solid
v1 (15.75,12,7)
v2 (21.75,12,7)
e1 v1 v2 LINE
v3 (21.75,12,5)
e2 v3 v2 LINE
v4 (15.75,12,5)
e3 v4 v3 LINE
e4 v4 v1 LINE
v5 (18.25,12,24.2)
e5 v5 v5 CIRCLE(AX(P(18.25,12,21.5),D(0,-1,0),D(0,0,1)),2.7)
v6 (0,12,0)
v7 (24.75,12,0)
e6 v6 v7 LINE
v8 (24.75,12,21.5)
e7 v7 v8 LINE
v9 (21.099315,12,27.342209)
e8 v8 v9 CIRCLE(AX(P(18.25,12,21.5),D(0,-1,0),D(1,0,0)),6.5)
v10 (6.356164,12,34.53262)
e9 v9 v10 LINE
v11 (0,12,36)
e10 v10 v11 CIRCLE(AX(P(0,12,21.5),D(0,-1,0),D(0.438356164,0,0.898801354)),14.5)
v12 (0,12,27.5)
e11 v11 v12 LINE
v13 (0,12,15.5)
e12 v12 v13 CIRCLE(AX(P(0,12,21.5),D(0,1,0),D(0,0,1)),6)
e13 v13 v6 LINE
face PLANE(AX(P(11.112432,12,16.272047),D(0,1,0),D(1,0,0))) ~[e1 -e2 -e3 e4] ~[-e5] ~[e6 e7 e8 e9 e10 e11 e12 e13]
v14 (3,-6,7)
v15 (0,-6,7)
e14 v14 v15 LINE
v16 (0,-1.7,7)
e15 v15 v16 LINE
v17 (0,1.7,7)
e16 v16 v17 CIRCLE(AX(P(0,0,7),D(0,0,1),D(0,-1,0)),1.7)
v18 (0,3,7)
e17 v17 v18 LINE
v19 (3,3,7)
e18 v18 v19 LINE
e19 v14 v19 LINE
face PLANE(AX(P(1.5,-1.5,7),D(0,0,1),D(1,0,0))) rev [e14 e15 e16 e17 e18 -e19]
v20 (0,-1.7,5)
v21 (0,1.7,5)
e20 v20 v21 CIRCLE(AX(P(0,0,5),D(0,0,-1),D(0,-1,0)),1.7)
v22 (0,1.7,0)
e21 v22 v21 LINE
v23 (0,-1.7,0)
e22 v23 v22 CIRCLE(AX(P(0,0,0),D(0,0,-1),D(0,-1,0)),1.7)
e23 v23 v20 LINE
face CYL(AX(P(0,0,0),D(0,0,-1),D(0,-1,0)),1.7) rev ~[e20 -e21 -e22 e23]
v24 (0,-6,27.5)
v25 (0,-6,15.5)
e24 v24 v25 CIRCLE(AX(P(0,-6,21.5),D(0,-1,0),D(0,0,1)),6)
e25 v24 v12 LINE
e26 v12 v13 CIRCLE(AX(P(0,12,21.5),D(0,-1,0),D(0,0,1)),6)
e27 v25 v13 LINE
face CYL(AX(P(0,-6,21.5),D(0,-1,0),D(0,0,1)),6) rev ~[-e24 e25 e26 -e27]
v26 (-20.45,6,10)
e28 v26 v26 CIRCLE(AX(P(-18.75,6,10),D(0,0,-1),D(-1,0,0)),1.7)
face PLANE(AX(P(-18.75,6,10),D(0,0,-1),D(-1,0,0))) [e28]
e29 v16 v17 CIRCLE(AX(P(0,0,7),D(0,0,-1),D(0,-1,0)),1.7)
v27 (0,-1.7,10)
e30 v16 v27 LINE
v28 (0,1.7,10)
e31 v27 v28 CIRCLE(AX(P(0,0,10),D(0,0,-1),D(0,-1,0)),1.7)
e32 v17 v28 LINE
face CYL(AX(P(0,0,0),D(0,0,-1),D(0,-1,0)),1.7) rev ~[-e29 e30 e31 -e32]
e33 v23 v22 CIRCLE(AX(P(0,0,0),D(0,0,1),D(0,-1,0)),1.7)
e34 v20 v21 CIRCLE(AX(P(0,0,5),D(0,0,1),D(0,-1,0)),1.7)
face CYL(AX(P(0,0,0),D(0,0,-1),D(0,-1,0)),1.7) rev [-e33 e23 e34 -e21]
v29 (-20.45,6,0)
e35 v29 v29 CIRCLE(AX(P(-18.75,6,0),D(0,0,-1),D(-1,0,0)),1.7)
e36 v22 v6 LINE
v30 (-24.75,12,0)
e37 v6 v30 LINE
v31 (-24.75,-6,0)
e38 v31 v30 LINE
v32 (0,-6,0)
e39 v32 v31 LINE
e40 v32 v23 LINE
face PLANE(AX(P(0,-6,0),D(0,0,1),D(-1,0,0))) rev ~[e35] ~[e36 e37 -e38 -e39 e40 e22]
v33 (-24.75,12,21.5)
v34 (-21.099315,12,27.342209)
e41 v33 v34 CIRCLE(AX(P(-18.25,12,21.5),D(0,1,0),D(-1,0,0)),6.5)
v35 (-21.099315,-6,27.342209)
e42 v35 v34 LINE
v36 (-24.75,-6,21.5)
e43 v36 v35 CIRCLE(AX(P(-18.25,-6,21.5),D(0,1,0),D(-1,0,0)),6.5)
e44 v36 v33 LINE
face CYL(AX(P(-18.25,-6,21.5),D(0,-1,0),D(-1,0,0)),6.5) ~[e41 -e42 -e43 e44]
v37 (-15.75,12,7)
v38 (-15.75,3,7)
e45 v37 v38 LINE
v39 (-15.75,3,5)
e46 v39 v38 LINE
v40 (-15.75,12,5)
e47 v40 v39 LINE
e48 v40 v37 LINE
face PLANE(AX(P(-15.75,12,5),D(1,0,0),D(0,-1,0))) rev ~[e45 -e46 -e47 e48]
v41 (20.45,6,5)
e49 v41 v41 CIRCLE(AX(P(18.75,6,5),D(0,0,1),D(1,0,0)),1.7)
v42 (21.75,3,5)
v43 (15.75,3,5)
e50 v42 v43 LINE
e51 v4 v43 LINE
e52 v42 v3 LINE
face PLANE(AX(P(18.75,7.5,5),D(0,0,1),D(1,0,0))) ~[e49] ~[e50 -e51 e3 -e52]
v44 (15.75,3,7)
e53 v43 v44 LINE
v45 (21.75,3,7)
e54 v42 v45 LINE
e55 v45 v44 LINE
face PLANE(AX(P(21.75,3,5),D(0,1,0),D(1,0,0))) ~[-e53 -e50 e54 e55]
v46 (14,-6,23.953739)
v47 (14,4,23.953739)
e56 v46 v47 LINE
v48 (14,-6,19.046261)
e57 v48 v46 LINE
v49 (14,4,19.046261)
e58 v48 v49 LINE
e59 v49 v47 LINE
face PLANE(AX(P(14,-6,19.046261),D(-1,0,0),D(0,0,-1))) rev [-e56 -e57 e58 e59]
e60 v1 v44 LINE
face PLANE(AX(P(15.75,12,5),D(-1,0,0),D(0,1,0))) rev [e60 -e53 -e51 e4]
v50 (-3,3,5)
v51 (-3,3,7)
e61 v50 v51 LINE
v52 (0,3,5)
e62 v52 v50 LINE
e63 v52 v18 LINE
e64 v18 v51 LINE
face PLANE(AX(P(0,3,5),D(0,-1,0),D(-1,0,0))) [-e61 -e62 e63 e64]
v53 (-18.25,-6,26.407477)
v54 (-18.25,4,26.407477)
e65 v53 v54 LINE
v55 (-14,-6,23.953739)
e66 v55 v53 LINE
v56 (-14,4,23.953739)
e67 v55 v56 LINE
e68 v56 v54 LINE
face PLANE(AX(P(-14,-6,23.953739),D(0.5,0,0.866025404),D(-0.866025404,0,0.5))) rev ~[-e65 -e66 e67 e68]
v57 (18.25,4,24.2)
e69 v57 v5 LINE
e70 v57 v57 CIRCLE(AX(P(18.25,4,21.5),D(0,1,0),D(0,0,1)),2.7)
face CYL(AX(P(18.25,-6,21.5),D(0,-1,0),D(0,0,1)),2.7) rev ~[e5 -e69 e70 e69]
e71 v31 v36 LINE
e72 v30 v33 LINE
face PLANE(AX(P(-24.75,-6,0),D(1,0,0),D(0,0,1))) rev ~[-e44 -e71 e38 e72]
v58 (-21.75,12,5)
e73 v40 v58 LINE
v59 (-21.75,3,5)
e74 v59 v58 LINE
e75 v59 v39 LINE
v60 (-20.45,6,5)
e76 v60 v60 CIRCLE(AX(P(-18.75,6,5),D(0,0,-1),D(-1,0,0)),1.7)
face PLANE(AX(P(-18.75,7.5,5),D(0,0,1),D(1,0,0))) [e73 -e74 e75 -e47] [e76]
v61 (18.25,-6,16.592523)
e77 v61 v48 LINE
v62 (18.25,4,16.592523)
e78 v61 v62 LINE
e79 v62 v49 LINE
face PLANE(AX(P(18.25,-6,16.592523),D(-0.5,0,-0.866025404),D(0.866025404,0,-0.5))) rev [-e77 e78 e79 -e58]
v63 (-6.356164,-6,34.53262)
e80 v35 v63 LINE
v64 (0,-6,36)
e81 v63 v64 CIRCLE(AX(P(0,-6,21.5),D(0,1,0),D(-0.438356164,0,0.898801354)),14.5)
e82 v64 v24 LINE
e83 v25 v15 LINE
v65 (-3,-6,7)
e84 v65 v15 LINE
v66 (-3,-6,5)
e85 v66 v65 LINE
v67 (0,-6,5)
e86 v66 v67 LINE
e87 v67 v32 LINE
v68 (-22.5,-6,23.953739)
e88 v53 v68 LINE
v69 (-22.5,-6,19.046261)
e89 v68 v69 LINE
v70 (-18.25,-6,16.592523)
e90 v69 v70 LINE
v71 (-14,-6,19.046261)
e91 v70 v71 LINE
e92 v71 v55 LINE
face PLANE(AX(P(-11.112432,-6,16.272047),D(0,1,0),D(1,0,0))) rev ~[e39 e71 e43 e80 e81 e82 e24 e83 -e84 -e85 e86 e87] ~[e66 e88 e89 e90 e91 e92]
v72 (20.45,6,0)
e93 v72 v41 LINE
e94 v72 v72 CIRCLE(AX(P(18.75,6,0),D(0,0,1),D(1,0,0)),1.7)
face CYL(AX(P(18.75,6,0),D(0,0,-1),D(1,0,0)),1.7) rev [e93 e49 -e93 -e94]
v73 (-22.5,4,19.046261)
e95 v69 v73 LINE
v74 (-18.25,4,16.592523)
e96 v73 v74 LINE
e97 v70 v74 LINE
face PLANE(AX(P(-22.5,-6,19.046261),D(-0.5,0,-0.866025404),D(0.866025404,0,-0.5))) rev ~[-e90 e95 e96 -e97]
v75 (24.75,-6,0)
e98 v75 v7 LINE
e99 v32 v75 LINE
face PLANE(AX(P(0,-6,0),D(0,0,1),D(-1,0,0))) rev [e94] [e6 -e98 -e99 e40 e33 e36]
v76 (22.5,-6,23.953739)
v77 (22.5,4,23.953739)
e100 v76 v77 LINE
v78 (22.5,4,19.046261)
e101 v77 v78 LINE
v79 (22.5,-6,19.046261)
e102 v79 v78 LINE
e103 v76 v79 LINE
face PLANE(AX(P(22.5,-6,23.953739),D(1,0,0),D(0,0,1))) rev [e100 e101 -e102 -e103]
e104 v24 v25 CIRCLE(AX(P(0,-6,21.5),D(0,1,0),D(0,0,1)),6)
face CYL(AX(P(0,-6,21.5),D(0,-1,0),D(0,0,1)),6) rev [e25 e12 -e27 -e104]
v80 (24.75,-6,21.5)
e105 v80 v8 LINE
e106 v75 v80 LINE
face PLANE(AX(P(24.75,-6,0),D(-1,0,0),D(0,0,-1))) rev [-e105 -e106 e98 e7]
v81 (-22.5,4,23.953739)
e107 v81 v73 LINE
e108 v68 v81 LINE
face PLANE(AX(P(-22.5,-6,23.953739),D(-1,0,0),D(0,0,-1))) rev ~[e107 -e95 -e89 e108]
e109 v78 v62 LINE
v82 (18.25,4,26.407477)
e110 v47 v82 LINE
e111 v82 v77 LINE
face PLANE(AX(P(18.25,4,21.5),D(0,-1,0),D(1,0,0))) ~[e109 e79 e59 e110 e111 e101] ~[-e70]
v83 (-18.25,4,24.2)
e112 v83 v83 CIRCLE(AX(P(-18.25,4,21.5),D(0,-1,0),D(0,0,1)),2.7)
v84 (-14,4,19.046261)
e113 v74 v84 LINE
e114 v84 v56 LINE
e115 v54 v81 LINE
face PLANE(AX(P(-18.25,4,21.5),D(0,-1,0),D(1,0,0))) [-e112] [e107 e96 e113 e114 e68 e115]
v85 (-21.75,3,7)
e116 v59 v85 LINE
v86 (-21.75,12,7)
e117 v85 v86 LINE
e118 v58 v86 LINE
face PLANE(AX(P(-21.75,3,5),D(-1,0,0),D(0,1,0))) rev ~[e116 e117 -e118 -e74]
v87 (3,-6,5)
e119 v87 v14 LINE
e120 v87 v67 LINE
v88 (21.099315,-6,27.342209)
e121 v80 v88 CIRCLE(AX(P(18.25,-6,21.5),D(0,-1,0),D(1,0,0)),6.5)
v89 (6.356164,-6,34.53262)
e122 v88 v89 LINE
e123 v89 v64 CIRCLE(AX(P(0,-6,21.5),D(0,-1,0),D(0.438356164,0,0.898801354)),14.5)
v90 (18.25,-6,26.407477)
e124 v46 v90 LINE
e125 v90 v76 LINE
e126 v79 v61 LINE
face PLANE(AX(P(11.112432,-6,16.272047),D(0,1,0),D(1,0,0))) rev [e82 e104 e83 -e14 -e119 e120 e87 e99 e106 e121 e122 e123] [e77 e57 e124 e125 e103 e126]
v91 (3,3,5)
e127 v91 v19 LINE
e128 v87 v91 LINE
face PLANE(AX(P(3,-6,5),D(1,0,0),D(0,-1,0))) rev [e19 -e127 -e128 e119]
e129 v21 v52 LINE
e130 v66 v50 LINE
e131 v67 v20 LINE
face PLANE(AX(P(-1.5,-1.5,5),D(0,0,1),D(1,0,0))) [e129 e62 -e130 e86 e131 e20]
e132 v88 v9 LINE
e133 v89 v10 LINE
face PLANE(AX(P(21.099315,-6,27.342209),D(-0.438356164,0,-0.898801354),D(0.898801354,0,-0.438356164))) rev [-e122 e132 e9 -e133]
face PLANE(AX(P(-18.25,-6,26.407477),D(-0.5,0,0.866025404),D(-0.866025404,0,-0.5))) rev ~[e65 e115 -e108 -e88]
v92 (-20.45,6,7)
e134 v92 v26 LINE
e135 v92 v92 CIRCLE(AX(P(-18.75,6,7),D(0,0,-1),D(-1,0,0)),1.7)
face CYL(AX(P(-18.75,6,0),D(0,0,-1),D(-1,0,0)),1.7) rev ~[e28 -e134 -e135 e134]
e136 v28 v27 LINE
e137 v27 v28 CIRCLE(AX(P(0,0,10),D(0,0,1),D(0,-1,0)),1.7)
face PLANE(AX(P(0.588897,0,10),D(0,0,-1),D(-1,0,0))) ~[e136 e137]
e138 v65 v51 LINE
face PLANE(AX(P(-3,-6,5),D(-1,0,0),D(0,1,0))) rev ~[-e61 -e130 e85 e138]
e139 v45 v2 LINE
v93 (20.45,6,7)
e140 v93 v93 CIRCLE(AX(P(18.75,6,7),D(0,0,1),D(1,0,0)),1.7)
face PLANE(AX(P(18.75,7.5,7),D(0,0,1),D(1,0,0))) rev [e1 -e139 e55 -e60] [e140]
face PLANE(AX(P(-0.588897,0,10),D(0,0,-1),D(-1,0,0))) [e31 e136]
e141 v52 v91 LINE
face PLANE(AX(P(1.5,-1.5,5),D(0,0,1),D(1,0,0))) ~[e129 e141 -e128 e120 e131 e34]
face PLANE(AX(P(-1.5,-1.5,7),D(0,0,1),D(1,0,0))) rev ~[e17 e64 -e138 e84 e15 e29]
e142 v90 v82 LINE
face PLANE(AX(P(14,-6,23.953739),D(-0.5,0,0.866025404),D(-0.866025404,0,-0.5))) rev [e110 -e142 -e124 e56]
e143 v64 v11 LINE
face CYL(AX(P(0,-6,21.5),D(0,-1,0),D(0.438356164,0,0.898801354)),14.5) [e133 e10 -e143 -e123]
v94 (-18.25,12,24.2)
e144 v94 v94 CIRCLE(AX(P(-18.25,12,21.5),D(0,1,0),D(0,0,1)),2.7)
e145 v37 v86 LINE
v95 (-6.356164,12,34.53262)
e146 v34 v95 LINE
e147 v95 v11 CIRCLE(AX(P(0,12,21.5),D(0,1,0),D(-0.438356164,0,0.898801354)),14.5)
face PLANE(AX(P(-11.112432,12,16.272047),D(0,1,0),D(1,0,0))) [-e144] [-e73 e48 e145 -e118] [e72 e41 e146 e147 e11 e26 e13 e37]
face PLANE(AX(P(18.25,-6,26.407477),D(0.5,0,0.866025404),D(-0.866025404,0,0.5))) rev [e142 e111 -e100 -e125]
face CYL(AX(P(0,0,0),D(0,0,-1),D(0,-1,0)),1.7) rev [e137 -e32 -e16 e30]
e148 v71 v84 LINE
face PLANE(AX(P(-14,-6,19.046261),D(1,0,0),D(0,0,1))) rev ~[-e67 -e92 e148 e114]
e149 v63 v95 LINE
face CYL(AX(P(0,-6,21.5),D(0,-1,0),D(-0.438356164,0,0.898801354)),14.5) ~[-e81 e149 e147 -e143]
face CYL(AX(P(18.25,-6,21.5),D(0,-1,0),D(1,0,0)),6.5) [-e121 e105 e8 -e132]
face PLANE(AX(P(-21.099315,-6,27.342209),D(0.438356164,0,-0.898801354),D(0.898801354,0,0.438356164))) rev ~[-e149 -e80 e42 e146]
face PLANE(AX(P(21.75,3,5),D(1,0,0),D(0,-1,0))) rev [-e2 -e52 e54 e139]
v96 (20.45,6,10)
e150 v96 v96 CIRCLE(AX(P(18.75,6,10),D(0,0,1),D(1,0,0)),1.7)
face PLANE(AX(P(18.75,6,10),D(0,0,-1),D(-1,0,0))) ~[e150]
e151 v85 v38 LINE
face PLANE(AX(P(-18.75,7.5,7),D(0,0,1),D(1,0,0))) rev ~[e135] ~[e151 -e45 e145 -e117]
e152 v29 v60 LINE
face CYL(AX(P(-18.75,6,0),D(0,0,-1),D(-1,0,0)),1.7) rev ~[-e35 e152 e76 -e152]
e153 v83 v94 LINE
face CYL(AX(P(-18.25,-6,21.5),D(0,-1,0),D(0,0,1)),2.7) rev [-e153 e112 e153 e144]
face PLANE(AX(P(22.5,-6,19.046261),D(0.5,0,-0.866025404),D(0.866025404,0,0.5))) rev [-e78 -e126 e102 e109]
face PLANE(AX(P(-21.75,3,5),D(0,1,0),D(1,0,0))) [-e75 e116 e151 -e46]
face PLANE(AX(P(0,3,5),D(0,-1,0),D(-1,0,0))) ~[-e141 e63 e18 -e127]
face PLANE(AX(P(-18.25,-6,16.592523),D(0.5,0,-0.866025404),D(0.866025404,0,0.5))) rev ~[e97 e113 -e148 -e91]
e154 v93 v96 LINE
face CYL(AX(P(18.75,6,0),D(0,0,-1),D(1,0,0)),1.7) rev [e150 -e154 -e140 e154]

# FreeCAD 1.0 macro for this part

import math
import FreeCAD as App
import Part
import Sketcher
from FreeCAD import Vector
Q = App.Units.Quantity


def add_polygon(sketch, points):
    """Adds a closed chain of lines whose ends are joined by coincident constraints."""
    first, n = sketch.GeometryCount, len(points)
    for a, b in zip(points, points[1:] + points[:1]):
        sketch.addGeometry(Part.LineSegment(App.Vector(*a, 0), App.Vector(*b, 0)), False)
    for i in range(n):
        sketch.addConstraint(Sketcher.Constraint("Coincident", first + i, 2, first + (i + 1) % n, 1))

doc = App.newDocument("Part")
params = doc.addObject("Spreadsheet::Sheet", "Params")
for row, (alias, value) in enumerate([
    ("sketch1_radius", "6 mm"),
    ("sketch1_diameter", "5.4 mm"),
    ("sketch1_radius2", "6.5 mm"),
    ("sketch1_radius3", "14.5 mm"),
    ("sketch1_height", "21.5 mm"),
    ("pad1_length", "12 mm"),
    ("pad1_length2", "6 mm"),
    ("sketch2_diameter", "3.4 mm"),
    ("pocket1_length", "10 mm"),
    ("sketch3_width", "6 mm"),
    ("sketch3_width2", "3 mm"),
    ("sketch3_height", "9 mm"),
    ("pocket2_length", "2 mm"),
    ("pocket3_length", "10 mm"),
], start=1):
    params.set(f"A{row}", alias)
    params.set(f"B{row}", "=" + value)
    params.setAlias(f"B{row}", alias)

body = doc.addObject("PartDesign::Body", "Body")

# Sketch on XZ plane
sketch1 = body.newObject("Sketcher::SketchObject", "Sketch")
sketch1.AttachmentSupport = (doc.getObject("XZ_Plane"), [""])
sketch1.MapMode = "FlatFace"
sketch1.addGeometry([
    Part.LineSegment(Vector(-24.75, 0, 0), Vector(-24.75, 21.5, 0)),  # 0
    Part.ArcOfCircle(Part.Circle(Vector(-18.25, 21.5, 0), Vector(0, 0, 1), 6.5), math.radians(115.999045), math.radians(180)),  # 1
    Part.LineSegment(Vector(-21.099315, 27.342209, 0), Vector(-6.356164, 34.53262, 0)),  # 2
    Part.ArcOfCircle(Part.Circle(Vector(0, 21.5, 0), Vector(0, 0, 1), 14.5), math.radians(90), math.radians(115.999045)),  # 3
    Part.LineSegment(Vector(0, 36, 0), Vector(0, 27.5, 0)),  # 4
    Part.ArcOfCircle(Part.Circle(Vector(0, 21.5, 0), Vector(0, 0, 1), 6), math.radians(90), math.radians(270)),  # 5
    Part.LineSegment(Vector(0, 15.5, 0), Vector(0, 0, 0)),  # 6
    Part.LineSegment(Vector(0, 0, 0), Vector(-24.75, 0, 0)),  # 7
    Part.Circle(Vector(-18.25, 21.5, 0), Vector(0, 0, 1), 2.7),  # 8
], False)
sketch1.addConstraint([
    Sketcher.Constraint("Tangent", 0, 2, 1, 2),
    Sketcher.Constraint("Tangent", 1, 1, 2, 1),
    Sketcher.Constraint("Tangent", 2, 2, 3, 2),
    Sketcher.Constraint("Coincident", 3, 1, 4, 1),
    Sketcher.Constraint("Coincident", 4, 2, 5, 1),
    Sketcher.Constraint("Coincident", 5, 2, 6, 1),
    Sketcher.Constraint("Coincident", 6, 2, 7, 1),
    Sketcher.Constraint("Coincident", 7, 2, 0, 1),
    Sketcher.Constraint("Vertical", 0),
    Sketcher.Constraint("Vertical", 4),
    Sketcher.Constraint("Vertical", 6),
    Sketcher.Constraint("Horizontal", 7),
    Sketcher.Constraint("Coincident", 6, 2, -1, 1),
    Sketcher.Constraint("Coincident", 5, 3, 3, 3),
    Sketcher.Constraint("Coincident", 8, 3, 1, 3),
    Sketcher.Constraint("PointOnObject", 3, 3, -2),
    Sketcher.Constraint("PointOnObject", 3, 1, -2),
    Sketcher.Constraint("Horizontal", 1, 3, 3, 3),
    Sketcher.Constraint("Radius", 5, 6.0),
    Sketcher.Constraint("Diameter", 8, 5.4),
    Sketcher.Constraint("Radius", 1, 6.5),
    Sketcher.Constraint("Radius", 3, 14.5),
    Sketcher.Constraint("DistanceY", 0, 1, 0, 2, 21.5),
    Sketcher.Constraint("DistanceX", 7, 2, 7, 1, 24.75),
])
sketch1.setExpression("Constraints[18]", "Params.sketch1_radius")
sketch1.setExpression("Constraints[19]", "Params.sketch1_diameter")
sketch1.setExpression("Constraints[20]", "Params.sketch1_radius2")
sketch1.setExpression("Constraints[21]", "Params.sketch1_radius3")
sketch1.setExpression("Constraints[22]", "Params.sketch1_height")
pad1 = body.newObject("PartDesign::Pad", "Pad")
pad1.Profile = sketch1
pad1.Type = "TwoLengths"
pad1.setExpression("Length", "Params.pad1_length")
pad1.setExpression("Length2", "Params.pad1_length2")
pad1.Reversed = True

# Sketch on XY plane
sketch2 = body.newObject("Sketcher::SketchObject", "Sketch001")
sketch2.AttachmentSupport = (doc.getObject("XY_Plane"), [""])
sketch2.MapMode = "FlatFace"
sketch2.addGeometry([
    Part.Circle(Vector(-18.75, 6, 0), Vector(0, 0, 1), 1.7),
    Part.LineSegment(Vector(0, 1.7, 0), Vector(0, -1.7, 0)),
    Part.ArcOfCircle(Part.Circle(Vector(0, 0, 0), Vector(0, 0, 1), 1.7), math.radians(90), math.radians(270)),
], False)
sketch2.addConstraint([
    Sketcher.Constraint("Coincident", 1, 1, 2, 1),
    Sketcher.Constraint("Coincident", 2, 2, 1, 2),
    Sketcher.Constraint("Vertical", 1),
    Sketcher.Constraint("Coincident", 2, 3, -1, 1),
    Sketcher.Constraint("Equal", 0, 2),
    Sketcher.Constraint("PointOnObject", 1, 1, -2),
    Sketcher.Constraint("Diameter", 0, 3.4),
    Sketcher.Constraint("DistanceY", -1, 1, 0, 3, 6.0),
    Sketcher.Constraint("DistanceX", 0, 3, -1, 1, 18.75),
])
sketch2.setExpression("Constraints[6]", "Params.sketch2_diameter")
pocket1 = body.newObject("PartDesign::Pocket", "Pocket")
pocket1.Profile = sketch2
pocket1.setExpression("Length", "Params.pocket1_length")
pocket1.Reversed = True

# Sketch on XY plane
sketch3 = body.newObject("Sketcher::SketchObject", "Sketch002")
sketch3.AttachmentSupport = (doc.getObject("XY_Plane"), [""])
sketch3.MapMode = "FlatFace"
sketch3.AttachmentOffset = App.Placement(Vector(0, 0, 5), App.Rotation())
add_polygon(sketch3, [(-15.75, 12), (-15.75, 3), (-21.75, 3), (-21.75, 12)])  # lines 0-3
add_polygon(sketch3, [(-3, 3), (0, 3), (0, -6), (-3, -6)])  # lines 4-7
sketch3.addConstraint([
    Sketcher.Constraint("Vertical", 0),
    Sketcher.Constraint("Horizontal", 1),
    Sketcher.Constraint("Vertical", 2),
    Sketcher.Constraint("Horizontal", 3),
    Sketcher.Constraint("Horizontal", 4),
    Sketcher.Constraint("Vertical", 5),
    Sketcher.Constraint("Horizontal", 6),
    Sketcher.Constraint("Vertical", 7),
    Sketcher.Constraint("PointOnObject", 4, 2, -2),
    Sketcher.Constraint("Horizontal", 1, 2, 4, 2),
    Sketcher.Constraint("Equal", 2, 5),
    Sketcher.Constraint("DistanceX", 1, 2, 1, 1, 6.0),
    Sketcher.Constraint("DistanceX", 4, 1, 4, 2, 3.0),
    Sketcher.Constraint("DistanceY", 0, 2, 0, 1, 9.0),
    Sketcher.Constraint("DistanceY", -1, 1, 0, 2, 3.0),
    Sketcher.Constraint("DistanceX", 0, 2, -1, 1, 15.75),
])
sketch3.setExpression("Constraints[19]", "Params.sketch3_width")
sketch3.setExpression("Constraints[20]", "Params.sketch3_width2")
sketch3.setExpression("Constraints[21]", "Params.sketch3_height")
pocket2 = body.newObject("PartDesign::Pocket", "Pocket001")
pocket2.Profile = sketch3
pocket2.setExpression("Length", "Params.pocket2_length")
pocket2.Reversed = True

# Sketch on XZ plane
sketch4 = body.newObject("Sketcher::SketchObject", "Sketch003")
sketch4.AttachmentSupport = (doc.getObject("XZ_Plane"), [""])
sketch4.MapMode = "FlatFace"
sketch4.AttachmentOffset = App.Placement(Vector(0, 0, 6), App.Rotation())
add_polygon(sketch4, [(-14, 23.953739), (-18.25, 26.407477), (-22.5, 23.953739), (-22.5, 19.046261), (-18.25, 16.592523), (-14, 19.046261)])  # lines 0-5
sketch4.addConstraint([
    Sketcher.Constraint("Vertical", 2),
    Sketcher.Constraint("Vertical", 5),
    Sketcher.Constraint("Parallel", 0, 3),
    Sketcher.Constraint("Parallel", 1, 4),
    Sketcher.Constraint("Horizontal", 2, 2, 4, 2),
    Sketcher.Constraint("Horizontal", 1, 2, 5, 2),
    Sketcher.Constraint("Vertical", 0, 2, 3, 2),
    Sketcher.Constraint("Angle", 0, Q("150 deg")),
    Sketcher.Constraint("DistanceX", 4, 2, -1, 1, 14.0),
    Sketcher.Constraint("DistanceX", 1, 2, -1, 1, 22.5),
    Sketcher.Constraint("DistanceY", 2, 2, 2, 1, 4.907477),
    Sketcher.Constraint("DistanceY", -1, 1, 1, 2, 23.953739),
])
pocket3 = body.newObject("PartDesign::Pocket", "Pocket002")
pocket3.Profile = sketch4
pocket3.setExpression("Length", "Params.pocket3_length")
body2 = doc.addObject("PartDesign::Body", "Body001")
doc.recompute()

body2.BaseFeature = body
doc.recompute()

mirroring = doc.addObject("Part::Mirroring", "Mirroring")
mirroring.Source = body
mirroring.Base = Vector(0, -6, 0)
mirroring.Normal = Vector(1, 0, 0)
body3 = doc.addObject("PartDesign::Body", "Body002")
body3.BaseFeature = mirroring
boolean = body2.newObject("PartDesign::Boolean", "Boolean")
boolean.Type = "Fuse"
boolean.addObjects([body3])
doc.recompute()
mirroring.Visibility = False

doc.recompute()
